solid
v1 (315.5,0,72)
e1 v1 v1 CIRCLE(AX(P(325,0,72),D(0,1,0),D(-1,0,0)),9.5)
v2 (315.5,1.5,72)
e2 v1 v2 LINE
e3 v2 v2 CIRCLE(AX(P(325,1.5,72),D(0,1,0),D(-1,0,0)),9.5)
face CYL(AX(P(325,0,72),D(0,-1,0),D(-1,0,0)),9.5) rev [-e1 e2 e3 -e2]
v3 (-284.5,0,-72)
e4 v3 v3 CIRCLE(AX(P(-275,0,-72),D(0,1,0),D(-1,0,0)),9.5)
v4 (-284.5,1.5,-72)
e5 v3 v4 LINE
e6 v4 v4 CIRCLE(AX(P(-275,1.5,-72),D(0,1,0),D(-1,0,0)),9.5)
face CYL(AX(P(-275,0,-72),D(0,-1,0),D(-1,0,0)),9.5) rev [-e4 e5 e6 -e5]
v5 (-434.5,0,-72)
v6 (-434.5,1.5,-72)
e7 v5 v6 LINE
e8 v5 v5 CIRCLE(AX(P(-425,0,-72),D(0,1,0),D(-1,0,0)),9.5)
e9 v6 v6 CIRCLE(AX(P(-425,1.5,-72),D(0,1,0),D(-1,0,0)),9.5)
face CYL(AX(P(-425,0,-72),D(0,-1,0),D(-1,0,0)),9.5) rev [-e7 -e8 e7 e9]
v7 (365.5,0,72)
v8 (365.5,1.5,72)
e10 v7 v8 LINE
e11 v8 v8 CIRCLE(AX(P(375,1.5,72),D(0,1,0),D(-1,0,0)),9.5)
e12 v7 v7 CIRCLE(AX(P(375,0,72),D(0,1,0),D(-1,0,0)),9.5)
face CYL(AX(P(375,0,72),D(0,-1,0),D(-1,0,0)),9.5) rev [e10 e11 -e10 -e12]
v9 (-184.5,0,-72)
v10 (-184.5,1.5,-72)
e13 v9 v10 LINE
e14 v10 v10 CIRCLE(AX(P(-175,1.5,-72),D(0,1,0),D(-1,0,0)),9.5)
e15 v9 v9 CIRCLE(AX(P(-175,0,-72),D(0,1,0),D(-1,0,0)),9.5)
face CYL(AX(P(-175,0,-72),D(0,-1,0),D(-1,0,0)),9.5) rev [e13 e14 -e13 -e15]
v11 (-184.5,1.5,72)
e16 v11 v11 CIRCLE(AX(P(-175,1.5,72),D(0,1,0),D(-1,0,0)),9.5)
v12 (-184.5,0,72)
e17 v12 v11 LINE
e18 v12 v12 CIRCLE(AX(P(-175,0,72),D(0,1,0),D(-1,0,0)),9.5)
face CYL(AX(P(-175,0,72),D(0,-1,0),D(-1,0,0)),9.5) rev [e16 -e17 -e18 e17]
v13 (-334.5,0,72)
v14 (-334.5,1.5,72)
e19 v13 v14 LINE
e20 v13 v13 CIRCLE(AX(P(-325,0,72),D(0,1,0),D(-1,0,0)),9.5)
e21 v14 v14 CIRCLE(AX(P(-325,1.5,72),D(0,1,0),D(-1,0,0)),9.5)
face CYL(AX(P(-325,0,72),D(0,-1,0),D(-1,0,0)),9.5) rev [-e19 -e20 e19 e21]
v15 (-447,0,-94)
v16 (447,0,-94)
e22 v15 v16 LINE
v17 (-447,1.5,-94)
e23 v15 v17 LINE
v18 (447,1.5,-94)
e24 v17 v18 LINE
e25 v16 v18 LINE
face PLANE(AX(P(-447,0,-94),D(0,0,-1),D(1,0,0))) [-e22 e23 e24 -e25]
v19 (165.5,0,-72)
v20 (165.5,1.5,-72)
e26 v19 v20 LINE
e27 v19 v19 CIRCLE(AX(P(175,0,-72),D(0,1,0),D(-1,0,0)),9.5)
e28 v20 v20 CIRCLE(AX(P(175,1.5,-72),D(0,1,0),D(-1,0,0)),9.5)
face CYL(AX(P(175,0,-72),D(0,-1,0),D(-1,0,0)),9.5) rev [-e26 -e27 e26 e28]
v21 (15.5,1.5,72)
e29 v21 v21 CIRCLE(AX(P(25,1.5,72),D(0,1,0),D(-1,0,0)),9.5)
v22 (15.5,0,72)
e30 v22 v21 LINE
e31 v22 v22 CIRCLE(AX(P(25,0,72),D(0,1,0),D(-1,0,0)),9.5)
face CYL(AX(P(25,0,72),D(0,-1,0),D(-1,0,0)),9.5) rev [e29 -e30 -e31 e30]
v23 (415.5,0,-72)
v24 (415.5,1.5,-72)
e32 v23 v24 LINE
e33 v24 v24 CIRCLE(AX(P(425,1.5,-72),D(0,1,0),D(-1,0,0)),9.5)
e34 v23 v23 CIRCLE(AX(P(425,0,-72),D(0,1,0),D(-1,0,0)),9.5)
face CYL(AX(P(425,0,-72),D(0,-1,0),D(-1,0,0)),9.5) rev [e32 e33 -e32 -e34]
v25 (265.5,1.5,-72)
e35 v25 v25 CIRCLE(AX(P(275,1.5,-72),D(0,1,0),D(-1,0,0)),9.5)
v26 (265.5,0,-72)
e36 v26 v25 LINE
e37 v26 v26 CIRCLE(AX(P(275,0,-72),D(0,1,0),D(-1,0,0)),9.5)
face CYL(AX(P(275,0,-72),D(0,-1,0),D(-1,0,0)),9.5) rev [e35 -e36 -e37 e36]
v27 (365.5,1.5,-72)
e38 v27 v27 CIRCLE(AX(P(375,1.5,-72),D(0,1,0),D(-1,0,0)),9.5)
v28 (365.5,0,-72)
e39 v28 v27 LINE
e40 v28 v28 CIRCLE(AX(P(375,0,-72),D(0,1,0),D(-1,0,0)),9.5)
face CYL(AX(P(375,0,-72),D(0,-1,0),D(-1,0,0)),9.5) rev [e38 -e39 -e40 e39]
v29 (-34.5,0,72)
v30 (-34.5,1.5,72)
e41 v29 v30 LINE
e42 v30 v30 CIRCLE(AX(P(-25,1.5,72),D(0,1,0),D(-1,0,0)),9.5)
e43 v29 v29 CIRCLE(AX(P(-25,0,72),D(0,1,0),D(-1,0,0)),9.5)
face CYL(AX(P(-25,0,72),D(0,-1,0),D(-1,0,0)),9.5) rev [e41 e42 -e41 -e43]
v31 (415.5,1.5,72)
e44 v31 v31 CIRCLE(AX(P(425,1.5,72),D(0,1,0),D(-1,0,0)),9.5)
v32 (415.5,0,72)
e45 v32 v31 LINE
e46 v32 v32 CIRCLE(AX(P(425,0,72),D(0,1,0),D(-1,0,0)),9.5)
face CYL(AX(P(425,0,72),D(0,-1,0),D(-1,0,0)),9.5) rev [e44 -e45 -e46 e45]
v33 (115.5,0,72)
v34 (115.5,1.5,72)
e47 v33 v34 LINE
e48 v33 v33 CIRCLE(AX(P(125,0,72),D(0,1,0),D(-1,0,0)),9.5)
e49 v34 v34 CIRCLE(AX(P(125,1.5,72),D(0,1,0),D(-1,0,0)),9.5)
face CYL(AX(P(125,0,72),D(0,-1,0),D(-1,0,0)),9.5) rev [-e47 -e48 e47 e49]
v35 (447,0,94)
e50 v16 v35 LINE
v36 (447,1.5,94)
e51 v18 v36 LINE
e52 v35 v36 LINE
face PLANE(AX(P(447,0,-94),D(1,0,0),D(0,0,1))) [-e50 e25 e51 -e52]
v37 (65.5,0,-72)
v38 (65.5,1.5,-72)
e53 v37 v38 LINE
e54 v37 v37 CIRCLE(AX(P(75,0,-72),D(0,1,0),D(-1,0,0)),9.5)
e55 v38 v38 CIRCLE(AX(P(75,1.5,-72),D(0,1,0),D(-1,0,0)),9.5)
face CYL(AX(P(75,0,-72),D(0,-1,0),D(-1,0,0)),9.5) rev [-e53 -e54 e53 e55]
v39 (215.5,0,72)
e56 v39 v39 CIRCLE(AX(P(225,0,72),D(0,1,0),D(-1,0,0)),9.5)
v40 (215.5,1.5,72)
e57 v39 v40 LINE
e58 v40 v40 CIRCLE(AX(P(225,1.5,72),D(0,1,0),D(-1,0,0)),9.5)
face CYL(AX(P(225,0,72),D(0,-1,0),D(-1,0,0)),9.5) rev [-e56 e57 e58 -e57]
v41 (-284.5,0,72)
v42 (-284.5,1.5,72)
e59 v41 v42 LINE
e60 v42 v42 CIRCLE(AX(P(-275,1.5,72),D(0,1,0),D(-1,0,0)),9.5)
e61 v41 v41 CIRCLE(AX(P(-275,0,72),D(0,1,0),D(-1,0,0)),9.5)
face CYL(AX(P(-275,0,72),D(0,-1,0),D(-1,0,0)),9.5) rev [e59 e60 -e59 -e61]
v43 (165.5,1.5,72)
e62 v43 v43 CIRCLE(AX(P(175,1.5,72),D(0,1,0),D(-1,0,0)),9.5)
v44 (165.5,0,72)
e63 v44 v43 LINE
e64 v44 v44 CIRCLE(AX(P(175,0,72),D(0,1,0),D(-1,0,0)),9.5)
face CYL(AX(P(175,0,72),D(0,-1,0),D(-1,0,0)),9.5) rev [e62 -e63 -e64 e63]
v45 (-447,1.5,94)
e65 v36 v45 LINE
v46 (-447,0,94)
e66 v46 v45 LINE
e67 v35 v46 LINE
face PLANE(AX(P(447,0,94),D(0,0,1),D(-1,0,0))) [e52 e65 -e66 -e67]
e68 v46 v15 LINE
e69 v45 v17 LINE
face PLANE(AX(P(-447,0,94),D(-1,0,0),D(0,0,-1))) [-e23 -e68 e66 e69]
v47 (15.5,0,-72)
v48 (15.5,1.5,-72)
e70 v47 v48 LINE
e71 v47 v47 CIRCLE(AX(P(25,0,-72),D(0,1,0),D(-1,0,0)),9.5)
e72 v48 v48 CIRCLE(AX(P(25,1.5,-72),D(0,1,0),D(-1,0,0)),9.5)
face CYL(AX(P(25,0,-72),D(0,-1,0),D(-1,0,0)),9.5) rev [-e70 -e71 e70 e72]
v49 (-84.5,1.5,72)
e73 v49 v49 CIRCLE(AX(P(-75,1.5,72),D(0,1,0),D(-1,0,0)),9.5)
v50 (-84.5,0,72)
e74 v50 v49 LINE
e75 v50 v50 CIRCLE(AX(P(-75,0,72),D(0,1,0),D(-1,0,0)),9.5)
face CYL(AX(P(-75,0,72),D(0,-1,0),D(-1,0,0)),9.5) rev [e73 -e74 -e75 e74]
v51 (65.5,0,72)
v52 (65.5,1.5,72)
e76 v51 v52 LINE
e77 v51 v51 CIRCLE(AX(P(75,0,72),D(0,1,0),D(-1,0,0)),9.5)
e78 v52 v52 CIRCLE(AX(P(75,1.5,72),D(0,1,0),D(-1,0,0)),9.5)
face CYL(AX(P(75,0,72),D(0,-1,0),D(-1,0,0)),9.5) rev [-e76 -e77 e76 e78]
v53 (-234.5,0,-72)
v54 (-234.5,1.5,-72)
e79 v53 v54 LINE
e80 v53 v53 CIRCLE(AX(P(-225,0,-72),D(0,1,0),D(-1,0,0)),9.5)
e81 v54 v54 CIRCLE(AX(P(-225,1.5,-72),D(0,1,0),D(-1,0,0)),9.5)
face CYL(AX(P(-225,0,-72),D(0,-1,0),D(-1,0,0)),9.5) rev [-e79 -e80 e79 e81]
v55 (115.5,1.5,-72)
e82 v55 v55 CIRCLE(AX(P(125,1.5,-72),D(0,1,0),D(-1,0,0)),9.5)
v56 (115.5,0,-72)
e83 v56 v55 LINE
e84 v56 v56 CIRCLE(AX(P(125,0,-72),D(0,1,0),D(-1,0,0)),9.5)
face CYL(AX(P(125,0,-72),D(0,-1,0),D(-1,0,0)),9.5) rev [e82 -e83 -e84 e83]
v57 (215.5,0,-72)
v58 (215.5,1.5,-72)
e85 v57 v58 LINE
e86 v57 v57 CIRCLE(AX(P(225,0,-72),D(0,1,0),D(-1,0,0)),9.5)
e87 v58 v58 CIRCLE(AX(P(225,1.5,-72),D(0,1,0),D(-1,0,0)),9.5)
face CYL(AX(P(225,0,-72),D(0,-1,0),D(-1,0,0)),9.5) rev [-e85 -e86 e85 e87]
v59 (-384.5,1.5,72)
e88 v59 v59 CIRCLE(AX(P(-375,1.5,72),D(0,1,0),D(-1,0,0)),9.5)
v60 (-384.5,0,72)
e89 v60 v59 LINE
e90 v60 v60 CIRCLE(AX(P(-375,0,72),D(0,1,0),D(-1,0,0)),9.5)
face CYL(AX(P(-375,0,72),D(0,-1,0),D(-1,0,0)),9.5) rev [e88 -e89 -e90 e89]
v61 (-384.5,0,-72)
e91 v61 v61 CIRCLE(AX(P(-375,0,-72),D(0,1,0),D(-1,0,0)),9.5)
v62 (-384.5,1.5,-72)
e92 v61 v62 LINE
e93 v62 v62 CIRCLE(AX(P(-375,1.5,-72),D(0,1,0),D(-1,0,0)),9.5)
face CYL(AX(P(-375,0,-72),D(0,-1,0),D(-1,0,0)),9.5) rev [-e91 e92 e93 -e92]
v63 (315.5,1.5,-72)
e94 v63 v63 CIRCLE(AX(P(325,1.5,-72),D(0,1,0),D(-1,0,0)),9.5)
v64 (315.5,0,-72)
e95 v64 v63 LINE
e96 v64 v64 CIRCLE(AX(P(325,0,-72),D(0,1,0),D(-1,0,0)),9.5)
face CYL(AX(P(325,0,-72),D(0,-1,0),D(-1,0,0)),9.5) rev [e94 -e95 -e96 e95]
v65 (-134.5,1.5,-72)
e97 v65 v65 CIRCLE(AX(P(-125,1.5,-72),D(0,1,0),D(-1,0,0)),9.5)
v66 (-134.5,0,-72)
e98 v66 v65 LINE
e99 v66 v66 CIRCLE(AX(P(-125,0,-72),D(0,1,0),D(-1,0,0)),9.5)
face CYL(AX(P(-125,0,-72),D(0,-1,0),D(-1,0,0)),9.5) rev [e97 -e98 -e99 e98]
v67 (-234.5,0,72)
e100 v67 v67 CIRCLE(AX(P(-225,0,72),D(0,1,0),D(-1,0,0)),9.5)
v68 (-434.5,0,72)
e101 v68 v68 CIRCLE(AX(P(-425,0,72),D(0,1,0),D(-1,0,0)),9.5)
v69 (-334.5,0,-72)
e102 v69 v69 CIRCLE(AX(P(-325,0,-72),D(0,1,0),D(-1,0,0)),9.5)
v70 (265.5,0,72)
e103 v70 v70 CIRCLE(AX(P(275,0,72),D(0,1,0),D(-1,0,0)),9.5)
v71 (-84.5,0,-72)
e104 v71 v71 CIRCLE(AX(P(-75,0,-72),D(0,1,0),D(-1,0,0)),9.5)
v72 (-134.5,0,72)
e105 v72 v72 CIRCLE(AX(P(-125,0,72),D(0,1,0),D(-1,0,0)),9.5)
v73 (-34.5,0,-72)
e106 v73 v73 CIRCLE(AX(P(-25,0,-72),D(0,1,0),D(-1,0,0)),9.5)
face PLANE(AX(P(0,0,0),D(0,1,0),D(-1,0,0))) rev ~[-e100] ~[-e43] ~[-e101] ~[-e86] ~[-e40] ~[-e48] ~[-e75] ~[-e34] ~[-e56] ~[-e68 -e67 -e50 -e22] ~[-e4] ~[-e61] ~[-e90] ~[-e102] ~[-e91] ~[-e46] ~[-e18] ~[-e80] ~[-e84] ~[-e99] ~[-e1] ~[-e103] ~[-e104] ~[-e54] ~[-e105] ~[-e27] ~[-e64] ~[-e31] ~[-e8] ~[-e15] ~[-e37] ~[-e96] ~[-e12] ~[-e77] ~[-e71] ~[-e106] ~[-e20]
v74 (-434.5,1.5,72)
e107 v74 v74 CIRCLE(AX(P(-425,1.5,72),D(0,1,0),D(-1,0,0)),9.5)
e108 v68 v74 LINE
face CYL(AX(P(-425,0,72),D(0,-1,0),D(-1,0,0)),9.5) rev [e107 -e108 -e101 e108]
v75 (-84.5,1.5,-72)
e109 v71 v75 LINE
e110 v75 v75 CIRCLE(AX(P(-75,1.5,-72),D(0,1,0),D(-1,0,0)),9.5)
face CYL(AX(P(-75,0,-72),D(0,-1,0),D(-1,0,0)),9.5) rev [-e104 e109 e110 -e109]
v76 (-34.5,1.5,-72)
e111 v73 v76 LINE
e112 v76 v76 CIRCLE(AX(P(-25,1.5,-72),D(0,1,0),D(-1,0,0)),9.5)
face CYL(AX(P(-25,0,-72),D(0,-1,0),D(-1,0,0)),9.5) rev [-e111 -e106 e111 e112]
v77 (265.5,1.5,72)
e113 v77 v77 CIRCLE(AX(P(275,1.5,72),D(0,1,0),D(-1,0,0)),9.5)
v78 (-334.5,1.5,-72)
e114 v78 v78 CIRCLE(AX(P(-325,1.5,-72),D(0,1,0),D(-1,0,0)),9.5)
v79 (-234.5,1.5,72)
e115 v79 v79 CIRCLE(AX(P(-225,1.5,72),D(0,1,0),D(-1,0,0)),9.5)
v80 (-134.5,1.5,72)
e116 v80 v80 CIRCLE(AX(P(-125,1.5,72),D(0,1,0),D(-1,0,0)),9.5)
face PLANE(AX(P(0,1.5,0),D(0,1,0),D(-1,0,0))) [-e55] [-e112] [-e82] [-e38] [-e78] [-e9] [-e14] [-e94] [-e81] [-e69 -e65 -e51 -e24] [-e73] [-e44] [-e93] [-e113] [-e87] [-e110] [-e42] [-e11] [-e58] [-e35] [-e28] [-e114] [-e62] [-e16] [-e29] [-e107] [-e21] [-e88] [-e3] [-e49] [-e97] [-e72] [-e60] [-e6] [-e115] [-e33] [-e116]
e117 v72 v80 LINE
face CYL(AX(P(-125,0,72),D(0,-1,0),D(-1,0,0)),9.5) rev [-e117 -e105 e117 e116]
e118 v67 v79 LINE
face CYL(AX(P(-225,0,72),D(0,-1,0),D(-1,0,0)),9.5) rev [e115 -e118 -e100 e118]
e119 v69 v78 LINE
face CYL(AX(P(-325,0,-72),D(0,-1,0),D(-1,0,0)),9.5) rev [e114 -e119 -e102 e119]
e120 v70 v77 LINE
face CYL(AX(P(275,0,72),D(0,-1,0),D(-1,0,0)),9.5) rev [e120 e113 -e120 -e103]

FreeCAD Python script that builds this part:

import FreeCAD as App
import Part
import Sketcher
from FreeCAD import Vector
Q = App.Units.Quantity

doc = App.newDocument("Part")
params = doc.addObject("Spreadsheet::Sheet", "Params")
for row, (alias, value) in enumerate([
    ("sketch1_diameter", "19 mm"),
    ("sketch1_width", "894 mm"),
    ("sketch1_height", "188 mm"),
    ("pad1_length", "1.5 mm"),
], start=1):
    params.set(f"A{row}", alias)
    params.set(f"B{row}", "=" + value)
    params.setAlias(f"B{row}", alias)

body = doc.addObject("PartDesign::Body", "Body")

# Sketch on XZ plane
sketch1 = body.newObject("Sketcher::SketchObject", "Sketch")
sketch1.AttachmentSupport = (doc.getObject("XZ_Plane"), [""])
sketch1.MapMode = "FlatFace"
sketch1.addGeometry(Part.LineSegment(Vector(447, -94, 0), Vector(-447, -94, 0)), False)
sketch1.addGeometry(Part.LineSegment(Vector(-447, -94, 0), Vector(-447, 94, 0)), False)
sketch1.addGeometry(Part.LineSegment(Vector(-447, 94, 0), Vector(447, 94, 0)), False)
sketch1.addGeometry(Part.LineSegment(Vector(447, 94, 0), Vector(447, -94, 0)), False)
sketch1.addGeometry(Part.Circle(Vector(425, -72, 0), Vector(0, 0, 1), 10), False)
sketch1.addGeometry(Part.Circle(Vector(375, -72, 0), Vector(0, 0, 1), 10), False)
sketch1.addGeometry(Part.Circle(Vector(325, -72, 0), Vector(0, 0, 1), 10), False)
sketch1.addGeometry(Part.Circle(Vector(275, -72, 0), Vector(0, 0, 1), 10), False)
sketch1.addGeometry(Part.Circle(Vector(225, -72, 0), Vector(0, 0, 1), 10), False)
sketch1.addGeometry(Part.Circle(Vector(175, -72, 0), Vector(0, 0, 1), 10), False)
sketch1.addGeometry(Part.Circle(Vector(125, -72, 0), Vector(0, 0, 1), 10), False)
sketch1.addGeometry(Part.Circle(Vector(75, -72, 0), Vector(0, 0, 1), 10), False)
sketch1.addGeometry(Part.Circle(Vector(25, -72, 0), Vector(0, 0, 1), 10), False)
sketch1.addGeometry(Part.Circle(Vector(-25, -72, 0), Vector(0, 0, 1), 10), False)
sketch1.addGeometry(Part.Circle(Vector(-75, -72, 0), Vector(0, 0, 1), 10), False)
sketch1.addGeometry(Part.Circle(Vector(-125, -72, 0), Vector(0, 0, 1), 10), False)
sketch1.addGeometry(Part.Circle(Vector(-175, -72, 0), Vector(0, 0, 1), 10), False)
sketch1.addGeometry(Part.Circle(Vector(-225, -72, 0), Vector(0, 0, 1), 10), False)
sketch1.addGeometry(Part.Circle(Vector(-275, -72, 0), Vector(0, 0, 1), 10), False)
sketch1.addGeometry(Part.Circle(Vector(-325, -72, 0), Vector(0, 0, 1), 10), False)
sketch1.addGeometry(Part.Circle(Vector(-375, -72, 0), Vector(0, 0, 1), 10), False)
sketch1.addGeometry(Part.Circle(Vector(-425, -72, 0), Vector(0, 0, 1), 10), False)
sketch1.addGeometry(Part.Circle(Vector(425, 72, 0), Vector(0, 0, 1), 10), False)
sketch1.addGeometry(Part.Circle(Vector(375, 72, 0), Vector(0, 0, 1), 10), False)
sketch1.addGeometry(Part.Circle(Vector(325, 72, 0), Vector(0, 0, 1), 10), False)
sketch1.addGeometry(Part.Circle(Vector(275, 72, 0), Vector(0, 0, 1), 10), False)
sketch1.addGeometry(Part.Circle(Vector(225, 72, 0), Vector(0, 0, 1), 10), False)
sketch1.addGeometry(Part.Circle(Vector(175, 72, 0), Vector(0, 0, 1), 10), False)
sketch1.addGeometry(Part.Circle(Vector(125, 72, 0), Vector(0, 0, 1), 10), False)
sketch1.addGeometry(Part.Circle(Vector(75, 72, 0), Vector(0, 0, 1), 10), False)
sketch1.addGeometry(Part.Circle(Vector(25, 72, 0), Vector(0, 0, 1), 10), False)
sketch1.addGeometry(Part.Circle(Vector(-25, 72, 0), Vector(0, 0, 1), 10), False)
sketch1.addGeometry(Part.Circle(Vector(-75, 72, 0), Vector(0, 0, 1), 10), False)
sketch1.addGeometry(Part.Circle(Vector(-125, 72, 0), Vector(0, 0, 1), 10), False)
sketch1.addGeometry(Part.Circle(Vector(-175, 72, 0), Vector(0, 0, 1), 10), False)
sketch1.addGeometry(Part.Circle(Vector(-225, 72, 0), Vector(0, 0, 1), 10), False)
sketch1.addGeometry(Part.Circle(Vector(-275, 72, 0), Vector(0, 0, 1), 10), False)
sketch1.addGeometry(Part.Circle(Vector(-325, 72, 0), Vector(0, 0, 1), 10), False)
sketch1.addGeometry(Part.Circle(Vector(-375, 72, 0), Vector(0, 0, 1), 10), False)
sketch1.addGeometry(Part.Circle(Vector(-425, 72, 0), Vector(0, 0, 1), 10), False)
sketch1.addConstraint(Sketcher.Constraint("Coincident", 0, 2, 1, 1))
sketch1.addConstraint(Sketcher.Constraint("Coincident", 1, 2, 2, 1))
sketch1.addConstraint(Sketcher.Constraint("Coincident", 2, 2, 3, 1))
sketch1.addConstraint(Sketcher.Constraint("Coincident", 3, 2, 0, 1))
sketch1.addConstraint(Sketcher.Constraint("Horizontal", 0))
sketch1.addConstraint(Sketcher.Constraint("Vertical", 1))
sketch1.addConstraint(Sketcher.Constraint("Horizontal", 2))
sketch1.addConstraint(Sketcher.Constraint("Vertical", 3))
sketch1.addConstraint(Sketcher.Constraint("Equal", 4, 5))
sketch1.addConstraint(Sketcher.Constraint("Equal", 5, 6))
sketch1.addConstraint(Sketcher.Constraint("Equal", 6, 7))
sketch1.addConstraint(Sketcher.Constraint("Equal", 7, 8))
sketch1.addConstraint(Sketcher.Constraint("Equal", 8, 9))
sketch1.addConstraint(Sketcher.Constraint("Equal", 9, 10))
sketch1.addConstraint(Sketcher.Constraint("Equal", 10, 11))
sketch1.addConstraint(Sketcher.Constraint("Equal", 11, 12))
sketch1.addConstraint(Sketcher.Constraint("Equal", 12, 13))
sketch1.addConstraint(Sketcher.Constraint("Equal", 13, 14))
sketch1.addConstraint(Sketcher.Constraint("Equal", 14, 15))
sketch1.addConstraint(Sketcher.Constraint("Equal", 15, 16))
sketch1.addConstraint(Sketcher.Constraint("Equal", 16, 17))
sketch1.addConstraint(Sketcher.Constraint("Equal", 17, 18))
sketch1.addConstraint(Sketcher.Constraint("Equal", 18, 19))
sketch1.addConstraint(Sketcher.Constraint("Equal", 19, 20))
sketch1.addConstraint(Sketcher.Constraint("Equal", 20, 21))
sketch1.addConstraint(Sketcher.Constraint("Equal", 21, 22))
sketch1.addConstraint(Sketcher.Constraint("Equal", 22, 23))
sketch1.addConstraint(Sketcher.Constraint("Equal", 23, 24))
sketch1.addConstraint(Sketcher.Constraint("Equal", 24, 25))
sketch1.addConstraint(Sketcher.Constraint("Equal", 25, 26))
sketch1.addConstraint(Sketcher.Constraint("Equal", 26, 27))
sketch1.addConstraint(Sketcher.Constraint("Equal", 27, 28))
sketch1.addConstraint(Sketcher.Constraint("Equal", 28, 29))
sketch1.addConstraint(Sketcher.Constraint("Equal", 29, 30))
sketch1.addConstraint(Sketcher.Constraint("Equal", 30, 31))
sketch1.addConstraint(Sketcher.Constraint("Equal", 31, 32))
sketch1.addConstraint(Sketcher.Constraint("Equal", 32, 33))
sketch1.addConstraint(Sketcher.Constraint("Equal", 33, 34))
sketch1.addConstraint(Sketcher.Constraint("Equal", 34, 35))
sketch1.addConstraint(Sketcher.Constraint("Equal", 35, 36))
sketch1.addConstraint(Sketcher.Constraint("Equal", 36, 37))
sketch1.addConstraint(Sketcher.Constraint("Equal", 37, 38))
sketch1.addConstraint(Sketcher.Constraint("Equal", 38, 39))
sketch1.addConstraint(Sketcher.Constraint("Symmetric", 21, 3, 22, 3, -1, 1))
sketch1.addConstraint(Sketcher.Constraint("Symmetric", 20, 3, 23, 3, -1, 1))
sketch1.addConstraint(Sketcher.Constraint("Symmetric", 19, 3, 24, 3, -1, 1))
sketch1.addConstraint(Sketcher.Constraint("Symmetric", 18, 3, 25, 3, -1, 1))
sketch1.addConstraint(Sketcher.Constraint("Symmetric", 17, 3, 26, 3, -1, 1))
sketch1.addConstraint(Sketcher.Constraint("Symmetric", 16, 3, 27, 3, -1, 1))
sketch1.addConstraint(Sketcher.Constraint("Symmetric", 15, 3, 28, 3, -1, 1))
sketch1.addConstraint(Sketcher.Constraint("Symmetric", 14, 3, 29, 3, -1, 1))
sketch1.addConstraint(Sketcher.Constraint("Symmetric", 13, 3, 30, 3, -1, 1))
sketch1.addConstraint(Sketcher.Constraint("Symmetric", 12, 3, 31, 3, -1, 1))
sketch1.addConstraint(Sketcher.Constraint("Symmetric", 11, 3, 32, 3, -1, 1))
sketch1.addConstraint(Sketcher.Constraint("Symmetric", 10, 3, 33, 3, -1, 1))
sketch1.addConstraint(Sketcher.Constraint("Symmetric", 9, 3, 34, 3, -1, 1))
sketch1.addConstraint(Sketcher.Constraint("Symmetric", 8, 3, 35, 3, -1, 1))
sketch1.addConstraint(Sketcher.Constraint("Symmetric", 7, 3, 36, 3, -1, 1))
sketch1.addConstraint(Sketcher.Constraint("Symmetric", 6, 3, 37, 3, -1, 1))
sketch1.addConstraint(Sketcher.Constraint("Symmetric", 5, 3, 38, 3, -1, 1))
sketch1.addConstraint(Sketcher.Constraint("Symmetric", 4, 3, 39, 3, -1, 1))
sketch1.addConstraint(Sketcher.Constraint("Symmetric", 0, 2, 2, 2, -1, 1))
sketch1.addConstraint(Sketcher.Constraint("Symmetric", 12, 3, 13, 3, -2))
sketch1.addConstraint(Sketcher.Constraint("Symmetric", 11, 3, 14, 3, -2))
sketch1.addConstraint(Sketcher.Constraint("Symmetric", 10, 3, 15, 3, -2))
sketch1.addConstraint(Sketcher.Constraint("Symmetric", 9, 3, 16, 3, -2))
sketch1.addConstraint(Sketcher.Constraint("Symmetric", 8, 3, 17, 3, -2))
sketch1.addConstraint(Sketcher.Constraint("Symmetric", 7, 3, 18, 3, -2))
sketch1.addConstraint(Sketcher.Constraint("Symmetric", 6, 3, 19, 3, -2))
sketch1.addConstraint(Sketcher.Constraint("Symmetric", 5, 3, 20, 3, -2))
sketch1.addConstraint(Sketcher.Constraint("Symmetric", 4, 3, 21, 3, -2))
sketch1.addConstraint(Sketcher.Constraint("Horizontal", 4, 3, 5, 3))
sketch1.addConstraint(Sketcher.Constraint("Horizontal", 5, 3, 6, 3))
sketch1.addConstraint(Sketcher.Constraint("Horizontal", 6, 3, 7, 3))
sketch1.addConstraint(Sketcher.Constraint("Horizontal", 7, 3, 8, 3))
sketch1.addConstraint(Sketcher.Constraint("Horizontal", 8, 3, 9, 3))
sketch1.addConstraint(Sketcher.Constraint("Horizontal", 9, 3, 10, 3))
sketch1.addConstraint(Sketcher.Constraint("Horizontal", 10, 3, 11, 3))
sketch1.addConstraint(Sketcher.Constraint("Horizontal", 11, 3, 12, 3))
sketch1.addConstraint(Sketcher.Constraint("Diameter", 4, Q("19 mm")))
sketch1.addConstraint(Sketcher.Constraint("DistanceX", 0, 2, 0, 1, Q("894 mm")))
sketch1.addConstraint(Sketcher.Constraint("DistanceY", 1, 1, 1, 2, Q("188 mm")))
sketch1.addConstraint(Sketcher.Constraint("DistanceX", 5, 3, 4, 3, Q("50 mm")))
sketch1.addConstraint(Sketcher.Constraint("DistanceX", 6, 3, 5, 3, Q("50 mm")))
sketch1.addConstraint(Sketcher.Constraint("DistanceX", 7, 3, 6, 3, Q("50 mm")))
sketch1.addConstraint(Sketcher.Constraint("DistanceX", 8, 3, 7, 3, Q("50 mm")))
sketch1.addConstraint(Sketcher.Constraint("DistanceX", 9, 3, 8, 3, Q("50 mm")))
sketch1.addConstraint(Sketcher.Constraint("DistanceX", 10, 3, 9, 3, Q("50 mm")))
sketch1.addConstraint(Sketcher.Constraint("DistanceX", 11, 3, 10, 3, Q("50 mm")))
sketch1.addConstraint(Sketcher.Constraint("DistanceX", 12, 3, 11, 3, Q("50 mm")))
sketch1.addConstraint(Sketcher.Constraint("DistanceX", 13, 3, 12, 3, Q("50 mm")))
sketch1.addConstraint(Sketcher.Constraint("DistanceY", 4, 3, 22, 3, Q("144 mm")))
sketch1.setExpression("Constraints[79]", "Params.sketch1_diameter")
sketch1.setExpression("Constraints[80]", "Params.sketch1_width")
sketch1.setExpression("Constraints[81]", "Params.sketch1_height")
pad1 = body.newObject("PartDesign::Pad", "Pad")
pad1.Profile = sketch1
pad1.setExpression("Length", "Params.pad1_length")
pad1.Reversed = True

doc.recompute()
